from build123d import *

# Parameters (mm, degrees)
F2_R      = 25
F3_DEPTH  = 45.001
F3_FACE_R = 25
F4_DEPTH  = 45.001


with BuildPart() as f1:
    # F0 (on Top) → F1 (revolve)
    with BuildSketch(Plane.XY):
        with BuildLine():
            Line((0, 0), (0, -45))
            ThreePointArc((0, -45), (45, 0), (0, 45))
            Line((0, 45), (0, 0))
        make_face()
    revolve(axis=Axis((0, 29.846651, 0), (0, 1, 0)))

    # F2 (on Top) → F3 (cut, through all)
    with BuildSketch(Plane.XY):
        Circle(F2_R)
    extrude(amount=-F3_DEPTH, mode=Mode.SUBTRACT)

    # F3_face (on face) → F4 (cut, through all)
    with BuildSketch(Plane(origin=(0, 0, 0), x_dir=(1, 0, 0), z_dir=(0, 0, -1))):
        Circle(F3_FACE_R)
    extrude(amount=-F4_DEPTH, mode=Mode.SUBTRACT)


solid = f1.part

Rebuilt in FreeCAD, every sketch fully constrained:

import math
import FreeCAD as App
import Part
import Sketcher

V = App.Vector
Q = App.Units.Quantity

doc = App.newDocument("Part")
params = doc.addObject("Spreadsheet::Sheet", "Params")
for row, (alias, value) in enumerate([
    ("sketch1_radius", "45 mm"),
    ("revolution_angle", "360 deg"),
    ("sketch2_diameter", "50 mm"),
    ("sketch3_diameter", "50 mm"),
], start=1):
    params.set(f"A{row}", alias)
    params.set(f"B{row}", "=" + value)
    params.setAlias(f"B{row}", alias)

body = doc.addObject("PartDesign::Body", "Body")

# Sketch on XY plane
sketch1 = doc.addObject("Sketcher::SketchObject", "Sketch")
body.addObject(sketch1)
sketch1.AttachmentSupport = (doc.XY_Plane, [""])
sketch1.MapMode = "FlatFace"
sketch1.addGeometry([
    Part.ArcOfCircle(Part.Circle(V(0, 0, 0), V(0, 0, 1), 45), math.radians(-90), math.radians(90)),
    Part.LineSegment(V(0, 45, 0), V(0, -45, 0)),
], False)
sketch1.addConstraint([
    Sketcher.Constraint("Coincident", 0, 1, 1, 2),
    Sketcher.Constraint("Coincident", 1, 1, 0, 2),
    Sketcher.Constraint("Vertical", 1),
    Sketcher.Constraint("Coincident", 0, 3, -1, 1),
    Sketcher.Constraint("PointOnObject", 0, 1, -2),
    Sketcher.Constraint("Radius", 0, Q("45 mm")),
])
sketch1.setExpression("Constraints[5]", "Params.sketch1_radius")
revolution = doc.addObject("PartDesign::Revolution", "Revolution")
body.addObject(revolution)
revolution.Profile = sketch1
revolution.ReferenceAxis = (sketch1, ["V_Axis"])
revolution.setExpression("Angle", "Params.revolution_angle")

# Sketch on XY plane
sketch2 = doc.addObject("Sketcher::SketchObject", "Sketch001")
body.addObject(sketch2)
sketch2.AttachmentSupport = (doc.XY_Plane, [""])
sketch2.MapMode = "FlatFace"
sketch2.addGeometry(Part.Circle(V(0, 0, 0), V(0, 0, 1), 25), False)
sketch2.addConstraint([
    Sketcher.Constraint("Coincident", 0, 3, -1, 1),
    Sketcher.Constraint("Diameter", 0, Q("50 mm")),
])
sketch2.setExpression("Constraints[1]", "Params.sketch2_diameter")
pocket1 = doc.addObject("PartDesign::Pocket", "Pocket")
body.addObject(pocket1)
pocket1.Profile = sketch2
pocket1.Type = "ThroughAll"

# Sketch on XY plane
sketch3 = doc.addObject("Sketcher::SketchObject", "Sketch002")
body.addObject(sketch3)
sketch3.AttachmentSupport = (doc.XY_Plane, [""])
sketch3.MapMode = "FlatFace"
sketch3.addGeometry(Part.Circle(V(0, 0, 0), V(0, 0, 1), 25), False)
sketch3.addConstraint([
    Sketcher.Constraint("Coincident", 0, 3, -1, 1),
    Sketcher.Constraint("Diameter", 0, Q("50 mm")),
])
sketch3.setExpression("Constraints[1]", "Params.sketch3_diameter")
pocket2 = doc.addObject("PartDesign::Pocket", "Pocket001")
body.addObject(pocket2)
pocket2.Profile = sketch3
pocket2.Type = "ThroughAll"
pocket2.Reversed = True

doc.recompute()
